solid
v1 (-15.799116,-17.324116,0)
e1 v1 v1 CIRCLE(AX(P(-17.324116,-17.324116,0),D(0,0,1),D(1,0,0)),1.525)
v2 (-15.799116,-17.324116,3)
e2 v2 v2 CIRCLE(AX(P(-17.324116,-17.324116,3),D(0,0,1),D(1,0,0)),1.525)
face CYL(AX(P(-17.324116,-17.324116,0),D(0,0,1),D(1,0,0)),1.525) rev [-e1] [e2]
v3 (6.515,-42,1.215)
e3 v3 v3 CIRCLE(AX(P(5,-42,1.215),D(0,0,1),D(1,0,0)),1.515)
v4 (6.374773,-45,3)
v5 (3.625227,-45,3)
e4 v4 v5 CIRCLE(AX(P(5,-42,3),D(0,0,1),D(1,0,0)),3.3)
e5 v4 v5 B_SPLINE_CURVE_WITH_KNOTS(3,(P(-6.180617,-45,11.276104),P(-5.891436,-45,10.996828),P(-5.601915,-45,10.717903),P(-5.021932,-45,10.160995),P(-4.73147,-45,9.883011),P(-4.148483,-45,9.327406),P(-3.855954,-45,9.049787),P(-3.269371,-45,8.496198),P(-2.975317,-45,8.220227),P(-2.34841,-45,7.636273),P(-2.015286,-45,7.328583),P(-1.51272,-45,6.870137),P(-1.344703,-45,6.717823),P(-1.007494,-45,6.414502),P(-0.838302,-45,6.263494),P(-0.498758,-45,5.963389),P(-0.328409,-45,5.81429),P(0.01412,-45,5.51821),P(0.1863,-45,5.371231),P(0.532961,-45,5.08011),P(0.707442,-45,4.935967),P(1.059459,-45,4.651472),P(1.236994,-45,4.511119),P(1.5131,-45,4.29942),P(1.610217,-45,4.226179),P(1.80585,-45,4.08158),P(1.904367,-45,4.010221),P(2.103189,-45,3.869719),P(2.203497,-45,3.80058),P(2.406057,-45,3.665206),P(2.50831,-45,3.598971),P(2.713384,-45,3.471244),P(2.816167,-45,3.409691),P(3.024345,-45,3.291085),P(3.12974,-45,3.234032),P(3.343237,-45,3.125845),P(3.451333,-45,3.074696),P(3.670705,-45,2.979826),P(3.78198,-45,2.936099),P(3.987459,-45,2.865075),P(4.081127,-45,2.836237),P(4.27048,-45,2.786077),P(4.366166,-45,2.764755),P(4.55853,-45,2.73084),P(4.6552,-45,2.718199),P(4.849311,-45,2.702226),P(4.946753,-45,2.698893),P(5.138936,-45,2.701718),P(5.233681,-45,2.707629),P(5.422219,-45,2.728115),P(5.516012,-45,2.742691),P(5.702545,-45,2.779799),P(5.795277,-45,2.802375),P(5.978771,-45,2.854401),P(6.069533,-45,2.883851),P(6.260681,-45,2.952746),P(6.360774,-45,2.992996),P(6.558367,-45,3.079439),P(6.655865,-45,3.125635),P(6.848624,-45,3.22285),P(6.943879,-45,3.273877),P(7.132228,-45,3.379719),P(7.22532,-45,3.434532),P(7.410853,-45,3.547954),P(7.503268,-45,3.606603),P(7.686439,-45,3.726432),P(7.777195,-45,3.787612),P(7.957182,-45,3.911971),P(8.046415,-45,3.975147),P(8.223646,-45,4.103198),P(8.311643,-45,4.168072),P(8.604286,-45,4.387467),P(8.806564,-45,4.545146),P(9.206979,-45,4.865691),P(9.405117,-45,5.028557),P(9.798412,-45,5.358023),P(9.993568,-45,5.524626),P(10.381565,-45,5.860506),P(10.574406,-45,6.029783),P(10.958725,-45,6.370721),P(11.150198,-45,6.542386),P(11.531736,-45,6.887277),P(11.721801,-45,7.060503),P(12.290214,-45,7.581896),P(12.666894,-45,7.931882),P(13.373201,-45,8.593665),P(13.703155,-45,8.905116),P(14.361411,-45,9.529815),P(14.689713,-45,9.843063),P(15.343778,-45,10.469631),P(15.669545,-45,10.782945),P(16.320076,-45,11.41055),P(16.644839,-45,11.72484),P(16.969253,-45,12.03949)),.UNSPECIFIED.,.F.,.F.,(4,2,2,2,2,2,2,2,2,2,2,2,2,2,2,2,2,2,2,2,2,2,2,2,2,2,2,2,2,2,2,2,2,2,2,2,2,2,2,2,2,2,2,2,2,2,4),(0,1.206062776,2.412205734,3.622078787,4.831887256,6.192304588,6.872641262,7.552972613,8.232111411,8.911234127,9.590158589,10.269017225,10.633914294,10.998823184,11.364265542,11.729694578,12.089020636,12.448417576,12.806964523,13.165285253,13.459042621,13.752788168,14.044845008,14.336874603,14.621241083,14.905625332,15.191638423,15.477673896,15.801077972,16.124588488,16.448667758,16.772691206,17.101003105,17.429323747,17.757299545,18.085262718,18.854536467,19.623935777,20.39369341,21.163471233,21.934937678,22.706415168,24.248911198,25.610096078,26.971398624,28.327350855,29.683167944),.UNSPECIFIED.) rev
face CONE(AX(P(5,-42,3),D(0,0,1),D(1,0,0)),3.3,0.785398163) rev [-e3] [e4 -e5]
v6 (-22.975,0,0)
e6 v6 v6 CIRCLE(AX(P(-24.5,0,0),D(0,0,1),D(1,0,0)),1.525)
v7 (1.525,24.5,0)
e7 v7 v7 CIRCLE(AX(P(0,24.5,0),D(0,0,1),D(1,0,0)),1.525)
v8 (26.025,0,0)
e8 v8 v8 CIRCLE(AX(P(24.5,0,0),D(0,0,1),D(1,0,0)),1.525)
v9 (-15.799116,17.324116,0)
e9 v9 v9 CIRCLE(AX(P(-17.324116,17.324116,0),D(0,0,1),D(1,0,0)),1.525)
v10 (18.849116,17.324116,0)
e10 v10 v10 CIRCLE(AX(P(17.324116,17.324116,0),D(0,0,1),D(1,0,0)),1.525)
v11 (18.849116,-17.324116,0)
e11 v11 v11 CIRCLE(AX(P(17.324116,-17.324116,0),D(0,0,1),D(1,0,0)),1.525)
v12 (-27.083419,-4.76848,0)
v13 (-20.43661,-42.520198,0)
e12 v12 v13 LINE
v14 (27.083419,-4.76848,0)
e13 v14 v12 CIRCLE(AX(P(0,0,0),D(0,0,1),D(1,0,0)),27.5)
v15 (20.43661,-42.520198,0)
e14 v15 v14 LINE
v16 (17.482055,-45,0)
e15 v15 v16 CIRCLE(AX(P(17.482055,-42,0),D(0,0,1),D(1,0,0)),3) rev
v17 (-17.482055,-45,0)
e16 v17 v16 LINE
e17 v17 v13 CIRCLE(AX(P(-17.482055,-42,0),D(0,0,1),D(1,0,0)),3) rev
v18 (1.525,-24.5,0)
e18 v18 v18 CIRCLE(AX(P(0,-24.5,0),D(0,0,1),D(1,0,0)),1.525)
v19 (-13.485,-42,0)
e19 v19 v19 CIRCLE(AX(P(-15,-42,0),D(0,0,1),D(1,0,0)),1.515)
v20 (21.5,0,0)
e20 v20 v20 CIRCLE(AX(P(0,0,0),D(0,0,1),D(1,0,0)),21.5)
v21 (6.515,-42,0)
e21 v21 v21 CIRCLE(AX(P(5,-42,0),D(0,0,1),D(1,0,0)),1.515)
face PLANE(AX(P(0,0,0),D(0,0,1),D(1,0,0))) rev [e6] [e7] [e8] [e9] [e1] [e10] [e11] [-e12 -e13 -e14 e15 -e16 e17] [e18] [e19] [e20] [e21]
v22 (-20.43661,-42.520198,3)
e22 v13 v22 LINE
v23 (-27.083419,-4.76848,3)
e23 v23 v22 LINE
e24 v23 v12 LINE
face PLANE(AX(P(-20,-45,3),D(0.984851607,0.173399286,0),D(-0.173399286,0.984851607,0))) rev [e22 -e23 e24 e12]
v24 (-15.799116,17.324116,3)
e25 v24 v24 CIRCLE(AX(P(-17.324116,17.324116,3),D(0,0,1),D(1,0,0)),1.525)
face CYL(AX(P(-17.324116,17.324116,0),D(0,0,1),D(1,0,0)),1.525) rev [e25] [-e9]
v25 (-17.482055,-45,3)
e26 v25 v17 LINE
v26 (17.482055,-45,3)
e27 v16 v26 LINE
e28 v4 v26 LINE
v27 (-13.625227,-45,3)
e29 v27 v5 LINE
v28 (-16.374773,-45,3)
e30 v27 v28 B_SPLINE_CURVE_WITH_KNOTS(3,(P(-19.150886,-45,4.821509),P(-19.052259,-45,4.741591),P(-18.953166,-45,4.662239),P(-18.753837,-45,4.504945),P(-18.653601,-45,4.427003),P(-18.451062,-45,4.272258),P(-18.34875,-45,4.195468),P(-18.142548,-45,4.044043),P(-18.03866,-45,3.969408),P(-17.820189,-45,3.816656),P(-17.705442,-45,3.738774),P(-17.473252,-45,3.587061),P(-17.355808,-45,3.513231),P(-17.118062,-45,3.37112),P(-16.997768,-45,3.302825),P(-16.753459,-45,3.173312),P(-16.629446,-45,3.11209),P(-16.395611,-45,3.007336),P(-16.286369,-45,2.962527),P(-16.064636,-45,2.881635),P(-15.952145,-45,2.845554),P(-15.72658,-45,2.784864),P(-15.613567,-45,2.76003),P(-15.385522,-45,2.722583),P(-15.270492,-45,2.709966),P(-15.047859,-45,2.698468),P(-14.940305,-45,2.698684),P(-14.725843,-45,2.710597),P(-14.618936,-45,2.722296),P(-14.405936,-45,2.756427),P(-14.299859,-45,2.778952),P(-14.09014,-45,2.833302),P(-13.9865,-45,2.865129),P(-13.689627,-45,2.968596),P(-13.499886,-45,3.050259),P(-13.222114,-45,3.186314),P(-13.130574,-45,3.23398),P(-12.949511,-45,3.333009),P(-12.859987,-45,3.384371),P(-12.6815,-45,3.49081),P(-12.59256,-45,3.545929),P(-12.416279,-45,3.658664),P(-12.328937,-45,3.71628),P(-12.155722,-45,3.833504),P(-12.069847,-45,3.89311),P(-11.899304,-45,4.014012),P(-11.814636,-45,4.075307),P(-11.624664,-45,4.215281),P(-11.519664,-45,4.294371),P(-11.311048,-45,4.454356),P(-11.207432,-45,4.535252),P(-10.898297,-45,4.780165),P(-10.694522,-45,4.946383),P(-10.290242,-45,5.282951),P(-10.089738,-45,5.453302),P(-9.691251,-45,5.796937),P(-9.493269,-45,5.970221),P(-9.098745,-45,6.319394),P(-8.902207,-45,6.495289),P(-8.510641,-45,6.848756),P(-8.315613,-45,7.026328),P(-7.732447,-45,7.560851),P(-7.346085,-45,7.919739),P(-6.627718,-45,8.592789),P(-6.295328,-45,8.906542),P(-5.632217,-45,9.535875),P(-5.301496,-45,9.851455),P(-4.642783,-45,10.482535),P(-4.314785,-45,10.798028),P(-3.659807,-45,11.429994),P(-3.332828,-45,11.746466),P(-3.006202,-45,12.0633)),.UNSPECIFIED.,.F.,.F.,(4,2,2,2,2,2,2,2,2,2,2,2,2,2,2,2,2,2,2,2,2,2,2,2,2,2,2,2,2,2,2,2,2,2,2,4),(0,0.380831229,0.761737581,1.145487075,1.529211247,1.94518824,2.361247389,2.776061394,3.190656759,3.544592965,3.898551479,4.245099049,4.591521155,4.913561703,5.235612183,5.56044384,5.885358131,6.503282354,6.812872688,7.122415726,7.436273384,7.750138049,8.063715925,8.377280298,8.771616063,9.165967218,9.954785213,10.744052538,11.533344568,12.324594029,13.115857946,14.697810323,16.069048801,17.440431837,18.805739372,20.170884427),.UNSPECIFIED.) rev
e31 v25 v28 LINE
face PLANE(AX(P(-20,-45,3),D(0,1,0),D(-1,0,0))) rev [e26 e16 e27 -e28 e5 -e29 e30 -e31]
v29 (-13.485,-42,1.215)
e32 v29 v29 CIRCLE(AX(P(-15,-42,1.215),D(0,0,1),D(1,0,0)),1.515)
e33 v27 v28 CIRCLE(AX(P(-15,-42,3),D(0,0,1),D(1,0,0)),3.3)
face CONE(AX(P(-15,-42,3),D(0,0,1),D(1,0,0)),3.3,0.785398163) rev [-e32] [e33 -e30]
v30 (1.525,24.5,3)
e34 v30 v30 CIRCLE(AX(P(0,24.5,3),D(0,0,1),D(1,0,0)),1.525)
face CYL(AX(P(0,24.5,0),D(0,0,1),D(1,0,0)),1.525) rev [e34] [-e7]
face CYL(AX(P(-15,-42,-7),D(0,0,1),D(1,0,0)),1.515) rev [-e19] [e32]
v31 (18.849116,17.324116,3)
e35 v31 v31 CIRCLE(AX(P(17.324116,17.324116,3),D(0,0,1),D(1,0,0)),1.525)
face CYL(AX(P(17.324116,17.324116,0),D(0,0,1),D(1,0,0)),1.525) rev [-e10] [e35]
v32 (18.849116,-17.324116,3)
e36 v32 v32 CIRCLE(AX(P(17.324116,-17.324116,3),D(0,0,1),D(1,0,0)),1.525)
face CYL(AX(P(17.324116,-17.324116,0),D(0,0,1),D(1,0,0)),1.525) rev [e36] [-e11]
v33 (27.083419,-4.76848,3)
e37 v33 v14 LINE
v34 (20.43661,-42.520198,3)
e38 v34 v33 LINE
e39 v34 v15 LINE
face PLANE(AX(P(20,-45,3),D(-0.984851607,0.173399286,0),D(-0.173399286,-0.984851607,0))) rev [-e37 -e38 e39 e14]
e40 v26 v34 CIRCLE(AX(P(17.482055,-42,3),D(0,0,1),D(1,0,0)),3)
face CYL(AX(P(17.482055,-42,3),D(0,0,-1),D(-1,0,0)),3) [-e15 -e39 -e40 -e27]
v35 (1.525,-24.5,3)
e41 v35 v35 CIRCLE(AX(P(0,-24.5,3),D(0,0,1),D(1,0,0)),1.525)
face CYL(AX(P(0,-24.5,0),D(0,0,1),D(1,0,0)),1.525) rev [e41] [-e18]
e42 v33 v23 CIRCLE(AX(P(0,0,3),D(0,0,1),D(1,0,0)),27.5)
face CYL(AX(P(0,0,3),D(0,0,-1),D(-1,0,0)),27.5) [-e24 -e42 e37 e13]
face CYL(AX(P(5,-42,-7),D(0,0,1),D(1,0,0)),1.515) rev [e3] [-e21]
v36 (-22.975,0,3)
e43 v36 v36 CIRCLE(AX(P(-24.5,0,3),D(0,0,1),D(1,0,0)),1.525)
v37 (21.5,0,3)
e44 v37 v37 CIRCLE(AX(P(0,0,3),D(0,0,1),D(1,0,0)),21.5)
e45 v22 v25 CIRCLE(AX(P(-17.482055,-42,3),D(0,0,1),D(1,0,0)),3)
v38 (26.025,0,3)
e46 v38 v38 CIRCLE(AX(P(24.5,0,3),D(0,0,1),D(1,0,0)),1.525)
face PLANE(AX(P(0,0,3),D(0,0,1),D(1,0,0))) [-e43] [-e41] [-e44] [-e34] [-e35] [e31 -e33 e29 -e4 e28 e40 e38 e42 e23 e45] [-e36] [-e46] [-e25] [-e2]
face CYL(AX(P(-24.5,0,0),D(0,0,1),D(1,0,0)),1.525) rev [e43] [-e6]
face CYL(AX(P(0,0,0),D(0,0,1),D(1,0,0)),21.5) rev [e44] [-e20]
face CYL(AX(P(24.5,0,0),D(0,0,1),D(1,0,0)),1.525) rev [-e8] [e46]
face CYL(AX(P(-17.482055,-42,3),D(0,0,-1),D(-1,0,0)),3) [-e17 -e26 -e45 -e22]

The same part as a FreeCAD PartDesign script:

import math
import FreeCAD as App
import Part
import Sketcher
Q = App.Units.Quantity


def edges_at(feature, points):
    """Names of the edges that pass closest to the given points."""
    edges = feature.Shape.Edges
    near = lambda p: min(range(len(edges)), key=lambda i: edges[i].distToShape(Part.Vertex(*p))[0])
    return sorted({f"Edge{near(p) + 1}" for p in points})

doc = App.newDocument("Part")
body = doc.addObject("PartDesign::Body", "Body")

# Sketch on XY plane
sketch1 = doc.addObject("Sketcher::SketchObject", "Sketch")
body.addObject(sketch1)
sketch1.AttachmentSupport = (doc.XY_Plane, [""])
sketch1.MapMode = "FlatFace"
sketch1.addGeometry([
    Part.LineSegment(App.Vector(-20, -45, 0), App.Vector(20, -45, 0)),
    Part.LineSegment(App.Vector(20, -45, 0), App.Vector(27, -5, 0)),
    Part.ArcOfCircle(Part.Circle(App.Vector(0, 0, 0), App.Vector(0, 0, 1), 28), math.radians(-10), math.radians(190)),
    Part.LineSegment(App.Vector(-27, -5, 0), App.Vector(-20, -45, 0)),
], False)
sketch1.addConstraint([
    Sketcher.Constraint("Coincident", 0, 2, 1, 1),
    Sketcher.Constraint("Tangent", 1, 2, 2, 1),
    Sketcher.Constraint("Tangent", 2, 2, 3, 1),
    Sketcher.Constraint("Coincident", 3, 2, 0, 1),
    Sketcher.Constraint("Horizontal", 0),
    Sketcher.Constraint("Coincident", 2, 3, -1, 1),
    Sketcher.Constraint("Horizontal", 1, 2, 2, 2),
    Sketcher.Constraint("Radius", 2, Q("27.5 mm")),
    Sketcher.Constraint("DistanceX", 0, 1, 0, 2, Q("40 mm")),
    Sketcher.Constraint("DistanceY", 0, 2, -1, 1, Q("45 mm")),
])
pad1 = doc.addObject("PartDesign::Pad", "Pad")
body.addObject(pad1)
pad1.Profile = sketch1
pad1.Length = 3

# Sketch on XY plane
sketch2 = doc.addObject("Sketcher::SketchObject", "Sketch001")
body.addObject(sketch2)
sketch2.AttachmentSupport = (doc.XY_Plane, [""])
sketch2.MapMode = "FlatFace"
sketch2.AttachmentOffset = App.Placement(App.Vector(0, 0, 3), App.Rotation())
sketch2.addGeometry(Part.Circle(App.Vector(0, 0, 0), App.Vector(0, 0, 1), 22), False)
sketch2.addConstraint([
    Sketcher.Constraint("Coincident", 0, 3, -1, 1),
    Sketcher.Constraint("Diameter", 0, Q("43 mm")),
])
pocket1 = doc.addObject("PartDesign::Pocket", "Pocket")
body.addObject(pocket1)
pocket1.Profile = sketch2
pocket1.Length = 3

# Sketch on XY plane
sketch3 = doc.addObject("Sketcher::SketchObject", "Sketch002")
body.addObject(sketch3)
sketch3.AttachmentSupport = (doc.XY_Plane, [""])
sketch3.MapMode = "FlatFace"
sketch3.AttachmentOffset = App.Placement(App.Vector(0, 0, 3), App.Rotation())
sketch3.addGeometry([
    Part.Circle(App.Vector(17.3, 17.3, 0), App.Vector(0, 0, 1), 1.5),  # 0
    Part.Circle(App.Vector(24.5, 0, 0), App.Vector(0, 0, 1), 1.5),  # 1
    Part.Circle(App.Vector(17.3, -17.3, 0), App.Vector(0, 0, 1), 1.5),  # 2
    Part.Circle(App.Vector(0, -24.5, 0), App.Vector(0, 0, 1), 1.5),  # 3
    Part.Circle(App.Vector(-17.3, -17.3, 0), App.Vector(0, 0, 1), 1.5),  # 4
    Part.Circle(App.Vector(-24.5, 0, 0), App.Vector(0, 0, 1), 1.5),  # 5
    Part.Circle(App.Vector(-17.3, 17.3, 0), App.Vector(0, 0, 1), 1.5),  # 6
    Part.Circle(App.Vector(0, 24.5, 0), App.Vector(0, 0, 1), 1.5),  # 7
], False)
sketch3.addConstraint([
    Sketcher.Constraint("Equal", 0, 1),
    Sketcher.Constraint("Equal", 1, 2),
    Sketcher.Constraint("Equal", 2, 3),
    Sketcher.Constraint("Equal", 3, 4),
    Sketcher.Constraint("Equal", 4, 5),
    Sketcher.Constraint("Equal", 5, 6),
    Sketcher.Constraint("Equal", 6, 7),
    Sketcher.Constraint("Symmetric", 0, 3, 4, 3, -1, 1),
    Sketcher.Constraint("Symmetric", 1, 3, 5, 3, -1, 1),
    Sketcher.Constraint("Symmetric", 2, 3, 6, 3, -1, 1),
    Sketcher.Constraint("Symmetric", 3, 3, 7, 3, -1, 1),
    Sketcher.Constraint("Symmetric", 2, 3, 4, 3, -2),
    Sketcher.Constraint("PointOnObject", 1, 3, -1),
    Sketcher.Constraint("PointOnObject", 3, 3, -2),
    Sketcher.Constraint("Diameter", 0, Q("3.05 mm")),
    Sketcher.Constraint("DistanceX", 5, 3, 1, 3, Q("49 mm")),
    Sketcher.Constraint("DistanceY", 3, 3, -1, 1, Q("24.5 mm")),
    Sketcher.Constraint("DistanceX", -1, 1, 0, 3, Q("17.324116 mm")),
    Sketcher.Constraint("DistanceY", -1, 1, 0, 3, Q("17.324116 mm")),
])
pocket2 = doc.addObject("PartDesign::Pocket", "Pocket001")
body.addObject(pocket2)
pocket2.Profile = sketch3
pocket2.Length = 3
doc.recompute()

fillet = doc.addObject("PartDesign::Fillet", "Fillet")
body.addObject(fillet)
fillet.Base = (pocket2, edges_at(pocket2, [(20, -45, 1.5), (-20, -45, 1.5)]))
fillet.Radius = 3

# Sketch on XY plane
sketch4 = doc.addObject("Sketcher::SketchObject", "Sketch003")
body.addObject(sketch4)
sketch4.AttachmentSupport = (doc.XY_Plane, [""])
sketch4.MapMode = "FlatFace"
sketch4.AttachmentOffset = App.Placement(App.Vector(0, 0, 3), App.Rotation())
sketch4.addGeometry([
    Part.Circle(App.Vector(-15, -42, 0), App.Vector(0, 0, 1), 1.5),
    Part.Circle(App.Vector(5, -42, 0), App.Vector(0, 0, 1), 1.5),
], False)
sketch4.addConstraint([
    Sketcher.Constraint("Equal", 0, 1),
    Sketcher.Constraint("Horizontal", 0, 3, 1, 3),
    Sketcher.Constraint("Diameter", 0, Q("3.03 mm")),
    Sketcher.Constraint("DistanceX", 0, 3, -1, 1, Q("15 mm")),
    Sketcher.Constraint("DistanceY", 0, 3, -1, 1, Q("42 mm")),
    Sketcher.Constraint("DistanceX", -1, 1, 1, 3, Q("5 mm")),
])
pocket3 = doc.addObject("PartDesign::Pocket", "Pocket002")
body.addObject(pocket3)
pocket3.Profile = sketch4
pocket3.Length = 10

# Sketch on XY plane
sketch5 = doc.addObject("Sketcher::SketchObject", "Sketch004")
body.addObject(sketch5)
sketch5.AttachmentSupport = (doc.XY_Plane, [""])
sketch5.MapMode = "FlatFace"
sketch5.AttachmentOffset = App.Placement(App.Vector(0, 0, 3), App.Rotation())
sketch5.addGeometry([
    Part.Circle(App.Vector(-15, -42, 0), App.Vector(0, 0, 1), 1.5),
    Part.Circle(App.Vector(5, -42, 0), App.Vector(0, 0, 1), 1.5),
], False)
sketch5.addConstraint([
    Sketcher.Constraint("Equal", 0, 1),
    Sketcher.Constraint("Horizontal", 0, 3, 1, 3),
    Sketcher.Constraint("Diameter", 0, Q("3 mm")),
    Sketcher.Constraint("DistanceX", 0, 3, -1, 1, Q("15 mm")),
    Sketcher.Constraint("DistanceY", 0, 3, -1, 1, Q("42 mm")),
    Sketcher.Constraint("DistanceX", -1, 1, 1, 3, Q("5 mm")),
])
doc.recompute()
hole = doc.addObject("PartDesign::Hole", "Hole")
body.addObject(hole)
hole.Profile = sketch5
hole.ThreadType = "None"
hole.Diameter = 3
hole.DepthType = "Dimension"
hole.Depth = 7.25
hole.DrillPoint = "Angled"
hole.DrillPointAngle = 118
hole.HoleCutType = "Countersink"
hole.HoleCutDiameter = 6.6
hole.HoleCutCountersinkAngle = 90

doc.recompute()
